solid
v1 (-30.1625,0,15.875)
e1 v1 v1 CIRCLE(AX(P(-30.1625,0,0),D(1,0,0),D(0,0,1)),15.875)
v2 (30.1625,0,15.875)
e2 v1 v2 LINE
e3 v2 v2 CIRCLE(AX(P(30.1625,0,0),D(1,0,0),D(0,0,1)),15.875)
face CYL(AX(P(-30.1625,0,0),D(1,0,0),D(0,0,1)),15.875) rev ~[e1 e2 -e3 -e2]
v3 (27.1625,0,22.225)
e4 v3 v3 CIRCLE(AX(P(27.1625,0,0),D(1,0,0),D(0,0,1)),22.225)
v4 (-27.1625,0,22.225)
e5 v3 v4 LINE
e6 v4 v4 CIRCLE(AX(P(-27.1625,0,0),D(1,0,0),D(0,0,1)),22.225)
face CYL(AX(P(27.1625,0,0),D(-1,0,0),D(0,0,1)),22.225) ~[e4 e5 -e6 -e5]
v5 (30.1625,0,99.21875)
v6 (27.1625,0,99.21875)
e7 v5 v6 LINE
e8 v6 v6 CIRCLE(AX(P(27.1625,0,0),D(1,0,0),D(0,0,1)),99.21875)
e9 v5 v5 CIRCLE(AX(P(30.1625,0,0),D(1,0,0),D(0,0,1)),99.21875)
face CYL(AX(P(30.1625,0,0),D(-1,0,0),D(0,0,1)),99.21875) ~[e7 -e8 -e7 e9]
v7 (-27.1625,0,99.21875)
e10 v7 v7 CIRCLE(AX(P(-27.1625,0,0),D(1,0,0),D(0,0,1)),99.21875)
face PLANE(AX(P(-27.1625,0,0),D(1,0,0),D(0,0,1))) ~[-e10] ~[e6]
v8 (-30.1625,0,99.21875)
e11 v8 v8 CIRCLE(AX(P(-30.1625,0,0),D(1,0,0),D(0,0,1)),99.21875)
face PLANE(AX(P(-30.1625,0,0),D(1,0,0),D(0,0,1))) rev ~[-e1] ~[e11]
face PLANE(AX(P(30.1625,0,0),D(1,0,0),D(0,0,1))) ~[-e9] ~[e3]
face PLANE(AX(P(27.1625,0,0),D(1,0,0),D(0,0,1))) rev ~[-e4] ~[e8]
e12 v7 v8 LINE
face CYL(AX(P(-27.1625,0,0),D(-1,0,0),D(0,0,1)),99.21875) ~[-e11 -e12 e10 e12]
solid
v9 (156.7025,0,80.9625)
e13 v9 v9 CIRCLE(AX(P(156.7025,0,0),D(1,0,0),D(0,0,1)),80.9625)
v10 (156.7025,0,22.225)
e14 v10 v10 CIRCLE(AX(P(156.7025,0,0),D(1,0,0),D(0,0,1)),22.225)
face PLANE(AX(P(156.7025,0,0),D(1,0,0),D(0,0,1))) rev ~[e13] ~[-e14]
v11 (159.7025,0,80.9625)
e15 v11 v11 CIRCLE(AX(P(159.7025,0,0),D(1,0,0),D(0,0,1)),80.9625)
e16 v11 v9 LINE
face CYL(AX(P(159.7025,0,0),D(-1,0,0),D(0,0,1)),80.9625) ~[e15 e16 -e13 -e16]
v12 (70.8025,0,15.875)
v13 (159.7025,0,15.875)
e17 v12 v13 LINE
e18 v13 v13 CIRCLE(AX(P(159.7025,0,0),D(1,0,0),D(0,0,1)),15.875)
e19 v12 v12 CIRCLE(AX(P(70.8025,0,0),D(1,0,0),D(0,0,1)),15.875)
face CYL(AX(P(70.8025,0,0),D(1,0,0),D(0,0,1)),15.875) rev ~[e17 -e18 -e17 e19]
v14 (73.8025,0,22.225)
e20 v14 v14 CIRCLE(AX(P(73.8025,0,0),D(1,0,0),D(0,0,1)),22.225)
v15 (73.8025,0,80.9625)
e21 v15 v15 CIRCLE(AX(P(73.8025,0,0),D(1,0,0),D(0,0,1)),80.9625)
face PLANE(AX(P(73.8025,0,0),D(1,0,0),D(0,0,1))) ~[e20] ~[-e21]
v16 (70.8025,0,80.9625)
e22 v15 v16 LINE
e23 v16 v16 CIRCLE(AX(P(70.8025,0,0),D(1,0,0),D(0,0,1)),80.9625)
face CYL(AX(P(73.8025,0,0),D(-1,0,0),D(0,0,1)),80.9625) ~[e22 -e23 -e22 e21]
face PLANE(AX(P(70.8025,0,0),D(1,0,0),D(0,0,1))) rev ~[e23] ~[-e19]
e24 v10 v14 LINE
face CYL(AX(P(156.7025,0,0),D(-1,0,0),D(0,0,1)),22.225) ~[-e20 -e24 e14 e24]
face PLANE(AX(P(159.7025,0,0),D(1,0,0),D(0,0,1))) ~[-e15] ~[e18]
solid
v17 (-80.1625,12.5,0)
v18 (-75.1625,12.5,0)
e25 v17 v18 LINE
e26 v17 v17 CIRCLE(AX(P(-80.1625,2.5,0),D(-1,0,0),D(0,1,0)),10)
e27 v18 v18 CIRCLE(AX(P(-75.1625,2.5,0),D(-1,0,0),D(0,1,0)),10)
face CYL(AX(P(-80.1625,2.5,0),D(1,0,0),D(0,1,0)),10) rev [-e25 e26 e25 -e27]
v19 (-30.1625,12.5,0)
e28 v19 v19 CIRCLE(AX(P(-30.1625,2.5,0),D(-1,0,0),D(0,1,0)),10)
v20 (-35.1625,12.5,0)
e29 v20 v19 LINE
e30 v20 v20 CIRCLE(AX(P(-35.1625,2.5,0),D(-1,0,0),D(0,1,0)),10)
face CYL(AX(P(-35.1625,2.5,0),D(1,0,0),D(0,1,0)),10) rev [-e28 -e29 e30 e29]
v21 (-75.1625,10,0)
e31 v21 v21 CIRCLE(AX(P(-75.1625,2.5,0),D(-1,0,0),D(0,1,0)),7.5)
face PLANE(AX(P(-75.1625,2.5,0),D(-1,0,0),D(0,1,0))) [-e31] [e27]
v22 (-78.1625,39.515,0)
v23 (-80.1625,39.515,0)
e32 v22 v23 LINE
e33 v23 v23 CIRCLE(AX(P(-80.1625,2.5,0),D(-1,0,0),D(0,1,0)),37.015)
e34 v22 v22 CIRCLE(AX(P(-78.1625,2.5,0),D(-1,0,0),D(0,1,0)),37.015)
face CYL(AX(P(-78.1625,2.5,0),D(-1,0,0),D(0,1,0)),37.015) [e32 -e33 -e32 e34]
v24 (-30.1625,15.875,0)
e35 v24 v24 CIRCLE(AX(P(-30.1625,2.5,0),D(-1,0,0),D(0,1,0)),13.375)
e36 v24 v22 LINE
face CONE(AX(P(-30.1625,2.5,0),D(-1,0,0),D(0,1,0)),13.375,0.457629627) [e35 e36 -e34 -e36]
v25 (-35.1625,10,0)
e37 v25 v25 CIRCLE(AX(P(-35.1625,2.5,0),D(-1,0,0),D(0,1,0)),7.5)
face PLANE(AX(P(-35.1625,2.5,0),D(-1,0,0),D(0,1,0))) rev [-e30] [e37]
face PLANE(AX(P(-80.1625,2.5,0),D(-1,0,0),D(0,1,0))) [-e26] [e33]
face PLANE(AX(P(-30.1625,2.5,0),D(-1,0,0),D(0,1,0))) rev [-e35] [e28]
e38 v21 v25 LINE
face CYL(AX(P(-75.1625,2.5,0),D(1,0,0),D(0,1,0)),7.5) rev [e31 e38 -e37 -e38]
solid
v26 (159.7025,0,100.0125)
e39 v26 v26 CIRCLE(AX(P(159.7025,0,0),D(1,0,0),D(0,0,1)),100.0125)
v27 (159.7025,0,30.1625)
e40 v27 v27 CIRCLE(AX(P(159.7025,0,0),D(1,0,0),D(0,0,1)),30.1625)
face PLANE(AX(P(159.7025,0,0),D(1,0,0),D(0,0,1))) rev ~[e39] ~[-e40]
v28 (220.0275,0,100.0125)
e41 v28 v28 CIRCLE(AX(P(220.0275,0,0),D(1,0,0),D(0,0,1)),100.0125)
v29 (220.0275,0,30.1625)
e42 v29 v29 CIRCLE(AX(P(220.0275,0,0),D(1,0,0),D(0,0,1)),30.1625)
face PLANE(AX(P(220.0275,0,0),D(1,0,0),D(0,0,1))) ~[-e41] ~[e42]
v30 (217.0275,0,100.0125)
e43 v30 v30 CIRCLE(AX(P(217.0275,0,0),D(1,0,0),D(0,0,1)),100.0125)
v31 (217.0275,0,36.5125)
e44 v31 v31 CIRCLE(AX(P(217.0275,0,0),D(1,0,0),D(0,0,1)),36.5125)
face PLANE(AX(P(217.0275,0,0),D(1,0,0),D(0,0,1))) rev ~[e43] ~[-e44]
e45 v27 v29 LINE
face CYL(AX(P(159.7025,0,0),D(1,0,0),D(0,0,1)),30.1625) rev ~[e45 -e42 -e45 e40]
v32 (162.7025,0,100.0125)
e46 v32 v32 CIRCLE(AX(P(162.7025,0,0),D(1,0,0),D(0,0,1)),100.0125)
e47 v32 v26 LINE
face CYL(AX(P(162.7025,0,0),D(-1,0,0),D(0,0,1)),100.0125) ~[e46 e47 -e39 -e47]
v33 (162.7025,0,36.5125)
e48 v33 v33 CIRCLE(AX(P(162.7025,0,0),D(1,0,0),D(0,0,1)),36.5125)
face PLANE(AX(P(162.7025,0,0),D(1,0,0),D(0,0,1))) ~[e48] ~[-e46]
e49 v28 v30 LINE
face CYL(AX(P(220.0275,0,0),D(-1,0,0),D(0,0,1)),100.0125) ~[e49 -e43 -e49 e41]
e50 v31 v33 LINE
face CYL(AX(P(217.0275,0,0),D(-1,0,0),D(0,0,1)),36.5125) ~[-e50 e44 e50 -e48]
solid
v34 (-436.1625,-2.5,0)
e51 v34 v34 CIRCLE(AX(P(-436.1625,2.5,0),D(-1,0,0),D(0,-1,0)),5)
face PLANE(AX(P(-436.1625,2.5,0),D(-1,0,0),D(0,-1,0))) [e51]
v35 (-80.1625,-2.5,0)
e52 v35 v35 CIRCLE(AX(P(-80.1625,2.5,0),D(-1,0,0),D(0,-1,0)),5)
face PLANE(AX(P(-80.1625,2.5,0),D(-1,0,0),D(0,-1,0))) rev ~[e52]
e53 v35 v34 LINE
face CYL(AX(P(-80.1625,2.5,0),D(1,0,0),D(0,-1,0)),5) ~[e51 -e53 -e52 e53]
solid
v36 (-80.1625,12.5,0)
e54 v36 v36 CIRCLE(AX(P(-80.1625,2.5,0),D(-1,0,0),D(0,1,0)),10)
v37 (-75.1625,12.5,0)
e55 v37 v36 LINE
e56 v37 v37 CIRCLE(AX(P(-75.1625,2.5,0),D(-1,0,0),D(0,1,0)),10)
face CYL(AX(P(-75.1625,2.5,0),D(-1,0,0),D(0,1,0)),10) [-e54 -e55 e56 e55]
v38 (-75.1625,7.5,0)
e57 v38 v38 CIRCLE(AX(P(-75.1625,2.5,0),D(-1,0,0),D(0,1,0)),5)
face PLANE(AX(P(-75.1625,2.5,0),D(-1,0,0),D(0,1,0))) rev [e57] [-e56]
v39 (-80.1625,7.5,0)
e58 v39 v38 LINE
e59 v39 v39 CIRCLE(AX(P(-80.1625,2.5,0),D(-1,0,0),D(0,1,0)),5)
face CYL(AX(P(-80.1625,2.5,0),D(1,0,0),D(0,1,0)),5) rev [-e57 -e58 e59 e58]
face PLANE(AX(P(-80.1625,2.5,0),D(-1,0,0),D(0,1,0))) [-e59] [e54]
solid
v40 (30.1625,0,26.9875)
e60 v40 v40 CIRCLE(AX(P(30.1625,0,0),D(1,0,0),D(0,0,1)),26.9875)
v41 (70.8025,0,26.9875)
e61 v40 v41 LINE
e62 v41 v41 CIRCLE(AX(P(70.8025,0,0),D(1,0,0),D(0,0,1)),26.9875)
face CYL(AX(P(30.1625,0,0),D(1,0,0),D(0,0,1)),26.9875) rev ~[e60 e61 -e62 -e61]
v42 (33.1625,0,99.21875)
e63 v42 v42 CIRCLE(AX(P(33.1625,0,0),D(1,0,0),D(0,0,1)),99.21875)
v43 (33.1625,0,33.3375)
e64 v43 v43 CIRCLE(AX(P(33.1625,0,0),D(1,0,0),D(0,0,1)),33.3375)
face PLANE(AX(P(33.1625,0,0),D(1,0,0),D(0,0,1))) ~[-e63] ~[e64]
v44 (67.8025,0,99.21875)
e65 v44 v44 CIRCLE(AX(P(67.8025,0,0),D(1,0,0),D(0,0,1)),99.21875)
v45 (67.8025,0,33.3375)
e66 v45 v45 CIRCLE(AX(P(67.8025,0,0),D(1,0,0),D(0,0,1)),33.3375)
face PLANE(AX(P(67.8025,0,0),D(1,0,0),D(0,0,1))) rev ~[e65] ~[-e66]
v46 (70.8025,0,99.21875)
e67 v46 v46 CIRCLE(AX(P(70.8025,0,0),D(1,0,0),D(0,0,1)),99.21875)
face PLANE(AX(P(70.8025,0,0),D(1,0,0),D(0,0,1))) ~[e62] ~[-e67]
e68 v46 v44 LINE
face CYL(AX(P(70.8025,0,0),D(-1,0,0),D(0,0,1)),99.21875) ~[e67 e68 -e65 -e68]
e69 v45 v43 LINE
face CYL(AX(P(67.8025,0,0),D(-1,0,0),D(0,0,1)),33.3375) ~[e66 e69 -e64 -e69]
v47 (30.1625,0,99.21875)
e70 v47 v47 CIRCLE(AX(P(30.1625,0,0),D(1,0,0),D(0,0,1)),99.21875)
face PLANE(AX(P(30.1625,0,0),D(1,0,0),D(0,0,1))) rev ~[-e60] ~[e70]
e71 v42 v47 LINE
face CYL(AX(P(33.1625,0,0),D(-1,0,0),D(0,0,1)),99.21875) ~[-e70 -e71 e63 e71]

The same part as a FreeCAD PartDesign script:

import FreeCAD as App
import Part
import Sketcher

V = App.Vector
Q = App.Units.Quantity


def add_polygon(sketch, points):
    """Adds a closed chain of lines whose ends are joined by coincident constraints."""
    first, n = sketch.GeometryCount, len(points)
    for a, b in zip(points, points[1:] + points[:1]):
        sketch.addGeometry(Part.LineSegment(App.Vector(*a, 0), App.Vector(*b, 0)), False)
    for i in range(n):
        sketch.addConstraint(Sketcher.Constraint("Coincident", first + i, 2, first + (i + 1) % n, 1))

doc = App.newDocument("Part")
body = doc.addObject("PartDesign::Body", "Body")

sketch1 = body.newObject("Sketcher::SketchObject", "Sketch")
sketch1.AttachmentSupport = (doc.getObject("XZ_Plane"), [""])
sketch1.MapMode = "FlatFace"
add_polygon(sketch1, [(-27.1625, 99.21875), (-30.1625, 99.21875), (-30.1625, 15.875), (30.1625, 15.875), (30.1625, 99.21875), (27.1625, 99.21875), (27.1625, 22.225), (-27.1625, 22.225)])
sketch1.addConstraint(Sketcher.Constraint("Horizontal", 0))
sketch1.addConstraint(Sketcher.Constraint("Vertical", 1))
sketch1.addConstraint(Sketcher.Constraint("Horizontal", 2))
sketch1.addConstraint(Sketcher.Constraint("Vertical", 3))
sketch1.addConstraint(Sketcher.Constraint("Horizontal", 4))
sketch1.addConstraint(Sketcher.Constraint("Vertical", 5))
sketch1.addConstraint(Sketcher.Constraint("Horizontal", 6))
sketch1.addConstraint(Sketcher.Constraint("Vertical", 7))
sketch1.addConstraint(Sketcher.Constraint("Symmetric", 0, 2, 3, 2, -2))
sketch1.addConstraint(Sketcher.Constraint("Equal", 0, 4))
sketch1.addConstraint(Sketcher.Constraint("DistanceX", 2, 1, 2, 2, Q("2.375 in")))
sketch1.addConstraint(Sketcher.Constraint("DistanceY", 1, 2, 1, 1, Q("3.28125 in")))
sketch1.addConstraint(Sketcher.Constraint("DistanceY", 5, 2, 5, 1, Q("3.03125 in")))
sketch1.addConstraint(Sketcher.Constraint("DistanceY", -1, 1, 0, 2, Q("3.90625 in")))
sketch1.addConstraint(Sketcher.Constraint("DistanceX", 0, 2, 0, 1, Q("3 mm")))
revolution = body.newObject("PartDesign::Revolution", "Revolution")
revolution.Profile = sketch1
revolution.ReferenceAxis = (sketch1, ["H_Axis"])
revolution.Angle = 360
body2 = doc.addObject("PartDesign::Body", "Body001")

sketch2 = body2.newObject("Sketcher::SketchObject", "Sketch001")
sketch2.AttachmentSupport = (doc.getObject("XZ_Plane001"), [""])
sketch2.MapMode = "FlatFace"
add_polygon(sketch2, [(33.1625, 99.21875), (30.1625, 99.21875), (30.1625, 26.9875), (70.8025, 26.9875), (70.8025, 99.21875), (67.8025, 99.21875), (67.8025, 33.3375), (33.1625, 33.3375)])
sketch2.addConstraint(Sketcher.Constraint("Horizontal", 0))
sketch2.addConstraint(Sketcher.Constraint("Vertical", 1))
sketch2.addConstraint(Sketcher.Constraint("Horizontal", 2))
sketch2.addConstraint(Sketcher.Constraint("Vertical", 3))
sketch2.addConstraint(Sketcher.Constraint("Horizontal", 4))
sketch2.addConstraint(Sketcher.Constraint("Vertical", 5))
sketch2.addConstraint(Sketcher.Constraint("Horizontal", 6))
sketch2.addConstraint(Sketcher.Constraint("Vertical", 7))
sketch2.addConstraint(Sketcher.Constraint("Horizontal", 0, 2, 3, 2))
sketch2.addConstraint(Sketcher.Constraint("Equal", 0, 4))
sketch2.addConstraint(Sketcher.Constraint("DistanceX", 2, 1, 2, 2, Q("1.6 in")))
sketch2.addConstraint(Sketcher.Constraint("DistanceY", 1, 2, 1, 1, Q("2.84375 in")))
sketch2.addConstraint(Sketcher.Constraint("DistanceY", 5, 2, 5, 1, Q("2.59375 in")))
sketch2.addConstraint(Sketcher.Constraint("DistanceX", -1, 1, 0, 2, Q("1.1875 in")))
sketch2.addConstraint(Sketcher.Constraint("DistanceY", -1, 1, 0, 2, Q("3.90625 in")))
sketch2.addConstraint(Sketcher.Constraint("DistanceX", 0, 2, 0, 1, Q("3 mm")))
revolution2 = body2.newObject("PartDesign::Revolution", "Revolution001")
revolution2.Profile = sketch2
revolution2.ReferenceAxis = (sketch2, ["H_Axis"])
revolution2.Angle = 360
body3 = doc.addObject("PartDesign::Body", "Body002")

sketch3 = body3.newObject("Sketcher::SketchObject", "Sketch002")
sketch3.AttachmentSupport = (doc.getObject("XZ_Plane002"), [""])
sketch3.MapMode = "FlatFace"
add_polygon(sketch3, [(73.8025, 80.9625), (70.8025, 80.9625), (70.8025, 15.875), (159.7025, 15.875), (159.7025, 80.9625), (156.7025, 80.9625), (156.7025, 22.225), (73.8025, 22.225)])
sketch3.addConstraint(Sketcher.Constraint("Horizontal", 0))
sketch3.addConstraint(Sketcher.Constraint("Vertical", 1))
sketch3.addConstraint(Sketcher.Constraint("Horizontal", 2))
sketch3.addConstraint(Sketcher.Constraint("Vertical", 3))
sketch3.addConstraint(Sketcher.Constraint("Horizontal", 4))
sketch3.addConstraint(Sketcher.Constraint("Vertical", 5))
sketch3.addConstraint(Sketcher.Constraint("Horizontal", 6))
sketch3.addConstraint(Sketcher.Constraint("Vertical", 7))
sketch3.addConstraint(Sketcher.Constraint("Horizontal", 0, 2, 3, 2))
sketch3.addConstraint(Sketcher.Constraint("Equal", 0, 4))
sketch3.addConstraint(Sketcher.Constraint("DistanceX", 2, 1, 2, 2, Q("3.5 in")))
sketch3.addConstraint(Sketcher.Constraint("DistanceY", 1, 2, 1, 1, Q("2.5625 in")))
sketch3.addConstraint(Sketcher.Constraint("DistanceY", 5, 2, 5, 1, Q("2.3125 in")))
sketch3.addConstraint(Sketcher.Constraint("DistanceY", -1, 1, 0, 2, Q("3.1875 in")))
sketch3.addConstraint(Sketcher.Constraint("DistanceX", 0, 2, 0, 1, Q("3 mm")))
sketch3.addConstraint(Sketcher.Constraint("DistanceX", -1, 1, 0, 2, Q("2.7875 in")))
revolution3 = body3.newObject("PartDesign::Revolution", "Revolution002")
revolution3.Profile = sketch3
revolution3.ReferenceAxis = (sketch3, ["H_Axis"])
revolution3.Angle = 360
body4 = doc.addObject("PartDesign::Body", "Body003")

sketch4 = body4.newObject("Sketcher::SketchObject", "Sketch003")
sketch4.AttachmentSupport = (doc.getObject("XZ_Plane003"), [""])
sketch4.MapMode = "FlatFace"
add_polygon(sketch4, [(162.7025, 100.0125), (159.7025, 100.0125), (159.7025, 30.1625), (220.0275, 30.1625), (220.0275, 100.0125), (217.0275, 100.0125), (217.0275, 36.5125), (162.7025, 36.5125)])
sketch4.addConstraint(Sketcher.Constraint("Horizontal", 0))
sketch4.addConstraint(Sketcher.Constraint("Vertical", 1))
sketch4.addConstraint(Sketcher.Constraint("Horizontal", 2))
sketch4.addConstraint(Sketcher.Constraint("Vertical", 3))
sketch4.addConstraint(Sketcher.Constraint("Horizontal", 4))
sketch4.addConstraint(Sketcher.Constraint("Vertical", 5))
sketch4.addConstraint(Sketcher.Constraint("Horizontal", 6))
sketch4.addConstraint(Sketcher.Constraint("Vertical", 7))
sketch4.addConstraint(Sketcher.Constraint("Horizontal", 0, 2, 3, 2))
sketch4.addConstraint(Sketcher.Constraint("Equal", 0, 4))
sketch4.addConstraint(Sketcher.Constraint("DistanceY", 5, 2, 5, 1, Q("2.5 in")))
sketch4.addConstraint(Sketcher.Constraint("DistanceY", 1, 2, 1, 1, Q("2.75 in")))
sketch4.addConstraint(Sketcher.Constraint("DistanceX", 2, 1, 2, 2, Q("2.375 in")))
sketch4.addConstraint(Sketcher.Constraint("DistanceY", -1, 1, 0, 2, Q("3.9375 in")))
sketch4.addConstraint(Sketcher.Constraint("DistanceX", 0, 2, 0, 1, Q("3 mm")))
sketch4.addConstraint(Sketcher.Constraint("DistanceX", -1, 1, 0, 2, Q("6.2875 in")))
revolution4 = body4.newObject("PartDesign::Revolution", "Revolution003")
revolution4.Profile = sketch4
revolution4.ReferenceAxis = (sketch4, ["H_Axis"])
revolution4.Angle = 360
body5 = doc.addObject("PartDesign::Body", "Body004")

sketch5 = body5.newObject("Sketcher::SketchObject", "Sketch004")
sketch5.AttachmentSupport = (doc.getObject("XY_Plane004"), [""])
sketch5.MapMode = "FlatFace"
add_polygon(sketch5, [(-75.1625, 12.5), (-80.1625, 12.5), (-80.1625, 7.5), (-75.1625, 7.5)])
sketch5.addGeometry(Part.LineSegment(V(-75.1625, 2.5, 0), V(-80.1625, 2.5, 0)), True)
sketch5.addConstraint(Sketcher.Constraint("Horizontal", 0))
sketch5.addConstraint(Sketcher.Constraint("Vertical", 1))
sketch5.addConstraint(Sketcher.Constraint("Horizontal", 2))
sketch5.addConstraint(Sketcher.Constraint("Vertical", 3))
sketch5.addConstraint(Sketcher.Constraint("Horizontal", 4))
sketch5.addConstraint(Sketcher.Constraint("Vertical", 3, 2, 4, 1))
sketch5.addConstraint(Sketcher.Constraint("Vertical", 1, 2, 4, 2))
sketch5.addConstraint(Sketcher.Constraint("Equal", 4, 1))
sketch5.addConstraint(Sketcher.Constraint("DistanceX", 0, 2, 0, 1, Q("5 mm")))
sketch5.addConstraint(Sketcher.Constraint("DistanceX", 0, 2, -1, 1, Q("80.1625 mm")))
sketch5.addConstraint(Sketcher.Constraint("DistanceY", -1, 1, 0, 2, Q("12.5 mm")))
sketch5.addConstraint(Sketcher.Constraint("DistanceY", -1, 1, 4, 1, Q("2.5 mm")))
revolution5 = body5.newObject("PartDesign::Revolution", "Revolution004")
revolution5.Profile = sketch5
revolution5.ReferenceAxis = (sketch5, ["Axis0"])
revolution5.Angle = 360
body6 = doc.addObject("PartDesign::Body", "Body005")

sketch6 = body6.newObject("Sketcher::SketchObject", "Sketch005")
sketch6.AttachmentSupport = (doc.getObject("XY_Plane005"), [""])
sketch6.MapMode = "FlatFace"
add_polygon(sketch6, [(-78.1625, 39.515), (-80.1625, 39.515), (-80.1625, 12.5), (-75.1625, 12.5), (-75.1625, 10), (-35.1625, 10), (-35.1625, 12.5), (-30.1625, 12.5), (-30.1625, 15.875)])
sketch6.addGeometry(Part.LineSegment(V(-30.1625, 2.5, 0), V(-80.1625, 2.5, 0)), True)
sketch6.addConstraint(Sketcher.Constraint("Horizontal", 0))
sketch6.addConstraint(Sketcher.Constraint("Vertical", 1))
sketch6.addConstraint(Sketcher.Constraint("Horizontal", 2))
sketch6.addConstraint(Sketcher.Constraint("Vertical", 3))
sketch6.addConstraint(Sketcher.Constraint("Horizontal", 4))
sketch6.addConstraint(Sketcher.Constraint("Vertical", 5))
sketch6.addConstraint(Sketcher.Constraint("Horizontal", 6))
sketch6.addConstraint(Sketcher.Constraint("Vertical", 7))
sketch6.addConstraint(Sketcher.Constraint("Horizontal", 9))
sketch6.addConstraint(Sketcher.Constraint("Horizontal", 2, 2, 5, 2))
sketch6.addConstraint(Sketcher.Constraint("Vertical", 7, 2, 9, 1))
sketch6.addConstraint(Sketcher.Constraint("Vertical", 1, 2, 9, 2))
sketch6.addConstraint(Sketcher.Constraint("Equal", 2, 6))
sketch6.addConstraint(Sketcher.Constraint("DistanceX", 6, 2, -1, 1, Q("1.1875 in")))
sketch6.addConstraint(Sketcher.Constraint("DistanceY", -1, 1, 7, 2, Q("0.625 in")))
sketch6.addConstraint(Sketcher.Constraint("DistanceX", 0, 2, 0, 1, Q("2 mm")))
sketch6.addConstraint(Sketcher.Constraint("DistanceX", 2, 1, 2, 2, Q("5 mm")))
sketch6.addConstraint(Sketcher.Constraint("DistanceX", 4, 1, 4, 2, Q("40 mm")))
sketch6.addConstraint(Sketcher.Constraint("DistanceY", 1, 2, 1, 1, Q("27.015 mm")))
sketch6.addConstraint(Sketcher.Constraint("DistanceY", 3, 2, 3, 1, Q("2.5 mm")))
sketch6.addConstraint(Sketcher.Constraint("DistanceY", 7, 1, 7, 2, Q("3.375 mm")))
sketch6.addConstraint(Sketcher.Constraint("DistanceY", -1, 1, 9, 1, Q("2.5 mm")))
revolution6 = body6.newObject("PartDesign::Revolution", "Revolution005")
revolution6.Profile = sketch6
revolution6.ReferenceAxis = (sketch6, ["Axis0"])
revolution6.Angle = 360
body7 = doc.addObject("PartDesign::Body", "Body006")

sketch7 = body7.newObject("Sketcher::SketchObject", "Sketch006")
sketch7.AttachmentSupport = (doc.getObject("YZ_Plane006"), [""])
sketch7.MapMode = "FlatFace"
sketch7.AttachmentOffset = App.Placement(V(0, 0, -80.1625), App.Rotation())
sketch7.addGeometry(Part.Circle(V(2.5, 0, 0), V(0, 0, 1), 5), False)
sketch7.addConstraint(Sketcher.Constraint("PointOnObject", 0, 3, -1))
sketch7.addConstraint(Sketcher.Constraint("Diameter", 0, Q("10 mm")))
sketch7.addConstraint(Sketcher.Constraint("DistanceX", -1, 1, 0, 3, Q("2.5 mm")))
pad1 = body7.newObject("PartDesign::Pad", "Pad")
pad1.Profile = sketch7
pad1.Length = 356
pad1.Reversed = True

doc.recompute()
